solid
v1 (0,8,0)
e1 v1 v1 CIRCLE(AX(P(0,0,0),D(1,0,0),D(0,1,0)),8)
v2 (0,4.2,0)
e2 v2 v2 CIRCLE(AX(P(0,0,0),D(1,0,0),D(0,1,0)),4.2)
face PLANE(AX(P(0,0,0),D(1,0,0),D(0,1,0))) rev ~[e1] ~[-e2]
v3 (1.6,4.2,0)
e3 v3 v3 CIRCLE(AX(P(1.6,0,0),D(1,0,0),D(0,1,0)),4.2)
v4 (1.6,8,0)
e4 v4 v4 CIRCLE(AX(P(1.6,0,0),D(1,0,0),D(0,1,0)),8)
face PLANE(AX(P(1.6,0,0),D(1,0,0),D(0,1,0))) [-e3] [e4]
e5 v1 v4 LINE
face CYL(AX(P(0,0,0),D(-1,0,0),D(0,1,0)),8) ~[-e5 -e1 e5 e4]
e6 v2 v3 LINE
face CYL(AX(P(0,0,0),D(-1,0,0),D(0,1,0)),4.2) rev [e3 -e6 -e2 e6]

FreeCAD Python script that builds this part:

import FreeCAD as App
import Part
import Sketcher
from FreeCAD import Vector
Q = App.Units.Quantity

doc = App.newDocument("Part")
body = doc.addObject("PartDesign::Body", "Body")

# Sketch on YZ plane
sketch1 = doc.addObject("Sketcher::SketchObject", "Sketch")
body.addObject(sketch1)
sketch1.AttachmentSupport = (doc.YZ_Plane, [""])
sketch1.MapMode = "FlatFace"
sketch1.addGeometry([
    Part.Circle(Vector(0, 0, 0), Vector(0, 0, 1), 8),
    Part.Circle(Vector(0, 0, 0), Vector(0, 0, 1), 4.2),
], False)
sketch1.addConstraint([
    Sketcher.Constraint("Coincident", 0, 3, -1, 1),
    Sketcher.Constraint("Coincident", 1, 3, -1, 1),
    Sketcher.Constraint("Diameter", 0, Q("16 mm")),
    Sketcher.Constraint("Diameter", 1, Q("8.4 mm")),
])
pad1 = doc.addObject("PartDesign::Pad", "Pad")
body.addObject(pad1)
pad1.Profile = sketch1
pad1.Length = 1.6

doc.recompute()
